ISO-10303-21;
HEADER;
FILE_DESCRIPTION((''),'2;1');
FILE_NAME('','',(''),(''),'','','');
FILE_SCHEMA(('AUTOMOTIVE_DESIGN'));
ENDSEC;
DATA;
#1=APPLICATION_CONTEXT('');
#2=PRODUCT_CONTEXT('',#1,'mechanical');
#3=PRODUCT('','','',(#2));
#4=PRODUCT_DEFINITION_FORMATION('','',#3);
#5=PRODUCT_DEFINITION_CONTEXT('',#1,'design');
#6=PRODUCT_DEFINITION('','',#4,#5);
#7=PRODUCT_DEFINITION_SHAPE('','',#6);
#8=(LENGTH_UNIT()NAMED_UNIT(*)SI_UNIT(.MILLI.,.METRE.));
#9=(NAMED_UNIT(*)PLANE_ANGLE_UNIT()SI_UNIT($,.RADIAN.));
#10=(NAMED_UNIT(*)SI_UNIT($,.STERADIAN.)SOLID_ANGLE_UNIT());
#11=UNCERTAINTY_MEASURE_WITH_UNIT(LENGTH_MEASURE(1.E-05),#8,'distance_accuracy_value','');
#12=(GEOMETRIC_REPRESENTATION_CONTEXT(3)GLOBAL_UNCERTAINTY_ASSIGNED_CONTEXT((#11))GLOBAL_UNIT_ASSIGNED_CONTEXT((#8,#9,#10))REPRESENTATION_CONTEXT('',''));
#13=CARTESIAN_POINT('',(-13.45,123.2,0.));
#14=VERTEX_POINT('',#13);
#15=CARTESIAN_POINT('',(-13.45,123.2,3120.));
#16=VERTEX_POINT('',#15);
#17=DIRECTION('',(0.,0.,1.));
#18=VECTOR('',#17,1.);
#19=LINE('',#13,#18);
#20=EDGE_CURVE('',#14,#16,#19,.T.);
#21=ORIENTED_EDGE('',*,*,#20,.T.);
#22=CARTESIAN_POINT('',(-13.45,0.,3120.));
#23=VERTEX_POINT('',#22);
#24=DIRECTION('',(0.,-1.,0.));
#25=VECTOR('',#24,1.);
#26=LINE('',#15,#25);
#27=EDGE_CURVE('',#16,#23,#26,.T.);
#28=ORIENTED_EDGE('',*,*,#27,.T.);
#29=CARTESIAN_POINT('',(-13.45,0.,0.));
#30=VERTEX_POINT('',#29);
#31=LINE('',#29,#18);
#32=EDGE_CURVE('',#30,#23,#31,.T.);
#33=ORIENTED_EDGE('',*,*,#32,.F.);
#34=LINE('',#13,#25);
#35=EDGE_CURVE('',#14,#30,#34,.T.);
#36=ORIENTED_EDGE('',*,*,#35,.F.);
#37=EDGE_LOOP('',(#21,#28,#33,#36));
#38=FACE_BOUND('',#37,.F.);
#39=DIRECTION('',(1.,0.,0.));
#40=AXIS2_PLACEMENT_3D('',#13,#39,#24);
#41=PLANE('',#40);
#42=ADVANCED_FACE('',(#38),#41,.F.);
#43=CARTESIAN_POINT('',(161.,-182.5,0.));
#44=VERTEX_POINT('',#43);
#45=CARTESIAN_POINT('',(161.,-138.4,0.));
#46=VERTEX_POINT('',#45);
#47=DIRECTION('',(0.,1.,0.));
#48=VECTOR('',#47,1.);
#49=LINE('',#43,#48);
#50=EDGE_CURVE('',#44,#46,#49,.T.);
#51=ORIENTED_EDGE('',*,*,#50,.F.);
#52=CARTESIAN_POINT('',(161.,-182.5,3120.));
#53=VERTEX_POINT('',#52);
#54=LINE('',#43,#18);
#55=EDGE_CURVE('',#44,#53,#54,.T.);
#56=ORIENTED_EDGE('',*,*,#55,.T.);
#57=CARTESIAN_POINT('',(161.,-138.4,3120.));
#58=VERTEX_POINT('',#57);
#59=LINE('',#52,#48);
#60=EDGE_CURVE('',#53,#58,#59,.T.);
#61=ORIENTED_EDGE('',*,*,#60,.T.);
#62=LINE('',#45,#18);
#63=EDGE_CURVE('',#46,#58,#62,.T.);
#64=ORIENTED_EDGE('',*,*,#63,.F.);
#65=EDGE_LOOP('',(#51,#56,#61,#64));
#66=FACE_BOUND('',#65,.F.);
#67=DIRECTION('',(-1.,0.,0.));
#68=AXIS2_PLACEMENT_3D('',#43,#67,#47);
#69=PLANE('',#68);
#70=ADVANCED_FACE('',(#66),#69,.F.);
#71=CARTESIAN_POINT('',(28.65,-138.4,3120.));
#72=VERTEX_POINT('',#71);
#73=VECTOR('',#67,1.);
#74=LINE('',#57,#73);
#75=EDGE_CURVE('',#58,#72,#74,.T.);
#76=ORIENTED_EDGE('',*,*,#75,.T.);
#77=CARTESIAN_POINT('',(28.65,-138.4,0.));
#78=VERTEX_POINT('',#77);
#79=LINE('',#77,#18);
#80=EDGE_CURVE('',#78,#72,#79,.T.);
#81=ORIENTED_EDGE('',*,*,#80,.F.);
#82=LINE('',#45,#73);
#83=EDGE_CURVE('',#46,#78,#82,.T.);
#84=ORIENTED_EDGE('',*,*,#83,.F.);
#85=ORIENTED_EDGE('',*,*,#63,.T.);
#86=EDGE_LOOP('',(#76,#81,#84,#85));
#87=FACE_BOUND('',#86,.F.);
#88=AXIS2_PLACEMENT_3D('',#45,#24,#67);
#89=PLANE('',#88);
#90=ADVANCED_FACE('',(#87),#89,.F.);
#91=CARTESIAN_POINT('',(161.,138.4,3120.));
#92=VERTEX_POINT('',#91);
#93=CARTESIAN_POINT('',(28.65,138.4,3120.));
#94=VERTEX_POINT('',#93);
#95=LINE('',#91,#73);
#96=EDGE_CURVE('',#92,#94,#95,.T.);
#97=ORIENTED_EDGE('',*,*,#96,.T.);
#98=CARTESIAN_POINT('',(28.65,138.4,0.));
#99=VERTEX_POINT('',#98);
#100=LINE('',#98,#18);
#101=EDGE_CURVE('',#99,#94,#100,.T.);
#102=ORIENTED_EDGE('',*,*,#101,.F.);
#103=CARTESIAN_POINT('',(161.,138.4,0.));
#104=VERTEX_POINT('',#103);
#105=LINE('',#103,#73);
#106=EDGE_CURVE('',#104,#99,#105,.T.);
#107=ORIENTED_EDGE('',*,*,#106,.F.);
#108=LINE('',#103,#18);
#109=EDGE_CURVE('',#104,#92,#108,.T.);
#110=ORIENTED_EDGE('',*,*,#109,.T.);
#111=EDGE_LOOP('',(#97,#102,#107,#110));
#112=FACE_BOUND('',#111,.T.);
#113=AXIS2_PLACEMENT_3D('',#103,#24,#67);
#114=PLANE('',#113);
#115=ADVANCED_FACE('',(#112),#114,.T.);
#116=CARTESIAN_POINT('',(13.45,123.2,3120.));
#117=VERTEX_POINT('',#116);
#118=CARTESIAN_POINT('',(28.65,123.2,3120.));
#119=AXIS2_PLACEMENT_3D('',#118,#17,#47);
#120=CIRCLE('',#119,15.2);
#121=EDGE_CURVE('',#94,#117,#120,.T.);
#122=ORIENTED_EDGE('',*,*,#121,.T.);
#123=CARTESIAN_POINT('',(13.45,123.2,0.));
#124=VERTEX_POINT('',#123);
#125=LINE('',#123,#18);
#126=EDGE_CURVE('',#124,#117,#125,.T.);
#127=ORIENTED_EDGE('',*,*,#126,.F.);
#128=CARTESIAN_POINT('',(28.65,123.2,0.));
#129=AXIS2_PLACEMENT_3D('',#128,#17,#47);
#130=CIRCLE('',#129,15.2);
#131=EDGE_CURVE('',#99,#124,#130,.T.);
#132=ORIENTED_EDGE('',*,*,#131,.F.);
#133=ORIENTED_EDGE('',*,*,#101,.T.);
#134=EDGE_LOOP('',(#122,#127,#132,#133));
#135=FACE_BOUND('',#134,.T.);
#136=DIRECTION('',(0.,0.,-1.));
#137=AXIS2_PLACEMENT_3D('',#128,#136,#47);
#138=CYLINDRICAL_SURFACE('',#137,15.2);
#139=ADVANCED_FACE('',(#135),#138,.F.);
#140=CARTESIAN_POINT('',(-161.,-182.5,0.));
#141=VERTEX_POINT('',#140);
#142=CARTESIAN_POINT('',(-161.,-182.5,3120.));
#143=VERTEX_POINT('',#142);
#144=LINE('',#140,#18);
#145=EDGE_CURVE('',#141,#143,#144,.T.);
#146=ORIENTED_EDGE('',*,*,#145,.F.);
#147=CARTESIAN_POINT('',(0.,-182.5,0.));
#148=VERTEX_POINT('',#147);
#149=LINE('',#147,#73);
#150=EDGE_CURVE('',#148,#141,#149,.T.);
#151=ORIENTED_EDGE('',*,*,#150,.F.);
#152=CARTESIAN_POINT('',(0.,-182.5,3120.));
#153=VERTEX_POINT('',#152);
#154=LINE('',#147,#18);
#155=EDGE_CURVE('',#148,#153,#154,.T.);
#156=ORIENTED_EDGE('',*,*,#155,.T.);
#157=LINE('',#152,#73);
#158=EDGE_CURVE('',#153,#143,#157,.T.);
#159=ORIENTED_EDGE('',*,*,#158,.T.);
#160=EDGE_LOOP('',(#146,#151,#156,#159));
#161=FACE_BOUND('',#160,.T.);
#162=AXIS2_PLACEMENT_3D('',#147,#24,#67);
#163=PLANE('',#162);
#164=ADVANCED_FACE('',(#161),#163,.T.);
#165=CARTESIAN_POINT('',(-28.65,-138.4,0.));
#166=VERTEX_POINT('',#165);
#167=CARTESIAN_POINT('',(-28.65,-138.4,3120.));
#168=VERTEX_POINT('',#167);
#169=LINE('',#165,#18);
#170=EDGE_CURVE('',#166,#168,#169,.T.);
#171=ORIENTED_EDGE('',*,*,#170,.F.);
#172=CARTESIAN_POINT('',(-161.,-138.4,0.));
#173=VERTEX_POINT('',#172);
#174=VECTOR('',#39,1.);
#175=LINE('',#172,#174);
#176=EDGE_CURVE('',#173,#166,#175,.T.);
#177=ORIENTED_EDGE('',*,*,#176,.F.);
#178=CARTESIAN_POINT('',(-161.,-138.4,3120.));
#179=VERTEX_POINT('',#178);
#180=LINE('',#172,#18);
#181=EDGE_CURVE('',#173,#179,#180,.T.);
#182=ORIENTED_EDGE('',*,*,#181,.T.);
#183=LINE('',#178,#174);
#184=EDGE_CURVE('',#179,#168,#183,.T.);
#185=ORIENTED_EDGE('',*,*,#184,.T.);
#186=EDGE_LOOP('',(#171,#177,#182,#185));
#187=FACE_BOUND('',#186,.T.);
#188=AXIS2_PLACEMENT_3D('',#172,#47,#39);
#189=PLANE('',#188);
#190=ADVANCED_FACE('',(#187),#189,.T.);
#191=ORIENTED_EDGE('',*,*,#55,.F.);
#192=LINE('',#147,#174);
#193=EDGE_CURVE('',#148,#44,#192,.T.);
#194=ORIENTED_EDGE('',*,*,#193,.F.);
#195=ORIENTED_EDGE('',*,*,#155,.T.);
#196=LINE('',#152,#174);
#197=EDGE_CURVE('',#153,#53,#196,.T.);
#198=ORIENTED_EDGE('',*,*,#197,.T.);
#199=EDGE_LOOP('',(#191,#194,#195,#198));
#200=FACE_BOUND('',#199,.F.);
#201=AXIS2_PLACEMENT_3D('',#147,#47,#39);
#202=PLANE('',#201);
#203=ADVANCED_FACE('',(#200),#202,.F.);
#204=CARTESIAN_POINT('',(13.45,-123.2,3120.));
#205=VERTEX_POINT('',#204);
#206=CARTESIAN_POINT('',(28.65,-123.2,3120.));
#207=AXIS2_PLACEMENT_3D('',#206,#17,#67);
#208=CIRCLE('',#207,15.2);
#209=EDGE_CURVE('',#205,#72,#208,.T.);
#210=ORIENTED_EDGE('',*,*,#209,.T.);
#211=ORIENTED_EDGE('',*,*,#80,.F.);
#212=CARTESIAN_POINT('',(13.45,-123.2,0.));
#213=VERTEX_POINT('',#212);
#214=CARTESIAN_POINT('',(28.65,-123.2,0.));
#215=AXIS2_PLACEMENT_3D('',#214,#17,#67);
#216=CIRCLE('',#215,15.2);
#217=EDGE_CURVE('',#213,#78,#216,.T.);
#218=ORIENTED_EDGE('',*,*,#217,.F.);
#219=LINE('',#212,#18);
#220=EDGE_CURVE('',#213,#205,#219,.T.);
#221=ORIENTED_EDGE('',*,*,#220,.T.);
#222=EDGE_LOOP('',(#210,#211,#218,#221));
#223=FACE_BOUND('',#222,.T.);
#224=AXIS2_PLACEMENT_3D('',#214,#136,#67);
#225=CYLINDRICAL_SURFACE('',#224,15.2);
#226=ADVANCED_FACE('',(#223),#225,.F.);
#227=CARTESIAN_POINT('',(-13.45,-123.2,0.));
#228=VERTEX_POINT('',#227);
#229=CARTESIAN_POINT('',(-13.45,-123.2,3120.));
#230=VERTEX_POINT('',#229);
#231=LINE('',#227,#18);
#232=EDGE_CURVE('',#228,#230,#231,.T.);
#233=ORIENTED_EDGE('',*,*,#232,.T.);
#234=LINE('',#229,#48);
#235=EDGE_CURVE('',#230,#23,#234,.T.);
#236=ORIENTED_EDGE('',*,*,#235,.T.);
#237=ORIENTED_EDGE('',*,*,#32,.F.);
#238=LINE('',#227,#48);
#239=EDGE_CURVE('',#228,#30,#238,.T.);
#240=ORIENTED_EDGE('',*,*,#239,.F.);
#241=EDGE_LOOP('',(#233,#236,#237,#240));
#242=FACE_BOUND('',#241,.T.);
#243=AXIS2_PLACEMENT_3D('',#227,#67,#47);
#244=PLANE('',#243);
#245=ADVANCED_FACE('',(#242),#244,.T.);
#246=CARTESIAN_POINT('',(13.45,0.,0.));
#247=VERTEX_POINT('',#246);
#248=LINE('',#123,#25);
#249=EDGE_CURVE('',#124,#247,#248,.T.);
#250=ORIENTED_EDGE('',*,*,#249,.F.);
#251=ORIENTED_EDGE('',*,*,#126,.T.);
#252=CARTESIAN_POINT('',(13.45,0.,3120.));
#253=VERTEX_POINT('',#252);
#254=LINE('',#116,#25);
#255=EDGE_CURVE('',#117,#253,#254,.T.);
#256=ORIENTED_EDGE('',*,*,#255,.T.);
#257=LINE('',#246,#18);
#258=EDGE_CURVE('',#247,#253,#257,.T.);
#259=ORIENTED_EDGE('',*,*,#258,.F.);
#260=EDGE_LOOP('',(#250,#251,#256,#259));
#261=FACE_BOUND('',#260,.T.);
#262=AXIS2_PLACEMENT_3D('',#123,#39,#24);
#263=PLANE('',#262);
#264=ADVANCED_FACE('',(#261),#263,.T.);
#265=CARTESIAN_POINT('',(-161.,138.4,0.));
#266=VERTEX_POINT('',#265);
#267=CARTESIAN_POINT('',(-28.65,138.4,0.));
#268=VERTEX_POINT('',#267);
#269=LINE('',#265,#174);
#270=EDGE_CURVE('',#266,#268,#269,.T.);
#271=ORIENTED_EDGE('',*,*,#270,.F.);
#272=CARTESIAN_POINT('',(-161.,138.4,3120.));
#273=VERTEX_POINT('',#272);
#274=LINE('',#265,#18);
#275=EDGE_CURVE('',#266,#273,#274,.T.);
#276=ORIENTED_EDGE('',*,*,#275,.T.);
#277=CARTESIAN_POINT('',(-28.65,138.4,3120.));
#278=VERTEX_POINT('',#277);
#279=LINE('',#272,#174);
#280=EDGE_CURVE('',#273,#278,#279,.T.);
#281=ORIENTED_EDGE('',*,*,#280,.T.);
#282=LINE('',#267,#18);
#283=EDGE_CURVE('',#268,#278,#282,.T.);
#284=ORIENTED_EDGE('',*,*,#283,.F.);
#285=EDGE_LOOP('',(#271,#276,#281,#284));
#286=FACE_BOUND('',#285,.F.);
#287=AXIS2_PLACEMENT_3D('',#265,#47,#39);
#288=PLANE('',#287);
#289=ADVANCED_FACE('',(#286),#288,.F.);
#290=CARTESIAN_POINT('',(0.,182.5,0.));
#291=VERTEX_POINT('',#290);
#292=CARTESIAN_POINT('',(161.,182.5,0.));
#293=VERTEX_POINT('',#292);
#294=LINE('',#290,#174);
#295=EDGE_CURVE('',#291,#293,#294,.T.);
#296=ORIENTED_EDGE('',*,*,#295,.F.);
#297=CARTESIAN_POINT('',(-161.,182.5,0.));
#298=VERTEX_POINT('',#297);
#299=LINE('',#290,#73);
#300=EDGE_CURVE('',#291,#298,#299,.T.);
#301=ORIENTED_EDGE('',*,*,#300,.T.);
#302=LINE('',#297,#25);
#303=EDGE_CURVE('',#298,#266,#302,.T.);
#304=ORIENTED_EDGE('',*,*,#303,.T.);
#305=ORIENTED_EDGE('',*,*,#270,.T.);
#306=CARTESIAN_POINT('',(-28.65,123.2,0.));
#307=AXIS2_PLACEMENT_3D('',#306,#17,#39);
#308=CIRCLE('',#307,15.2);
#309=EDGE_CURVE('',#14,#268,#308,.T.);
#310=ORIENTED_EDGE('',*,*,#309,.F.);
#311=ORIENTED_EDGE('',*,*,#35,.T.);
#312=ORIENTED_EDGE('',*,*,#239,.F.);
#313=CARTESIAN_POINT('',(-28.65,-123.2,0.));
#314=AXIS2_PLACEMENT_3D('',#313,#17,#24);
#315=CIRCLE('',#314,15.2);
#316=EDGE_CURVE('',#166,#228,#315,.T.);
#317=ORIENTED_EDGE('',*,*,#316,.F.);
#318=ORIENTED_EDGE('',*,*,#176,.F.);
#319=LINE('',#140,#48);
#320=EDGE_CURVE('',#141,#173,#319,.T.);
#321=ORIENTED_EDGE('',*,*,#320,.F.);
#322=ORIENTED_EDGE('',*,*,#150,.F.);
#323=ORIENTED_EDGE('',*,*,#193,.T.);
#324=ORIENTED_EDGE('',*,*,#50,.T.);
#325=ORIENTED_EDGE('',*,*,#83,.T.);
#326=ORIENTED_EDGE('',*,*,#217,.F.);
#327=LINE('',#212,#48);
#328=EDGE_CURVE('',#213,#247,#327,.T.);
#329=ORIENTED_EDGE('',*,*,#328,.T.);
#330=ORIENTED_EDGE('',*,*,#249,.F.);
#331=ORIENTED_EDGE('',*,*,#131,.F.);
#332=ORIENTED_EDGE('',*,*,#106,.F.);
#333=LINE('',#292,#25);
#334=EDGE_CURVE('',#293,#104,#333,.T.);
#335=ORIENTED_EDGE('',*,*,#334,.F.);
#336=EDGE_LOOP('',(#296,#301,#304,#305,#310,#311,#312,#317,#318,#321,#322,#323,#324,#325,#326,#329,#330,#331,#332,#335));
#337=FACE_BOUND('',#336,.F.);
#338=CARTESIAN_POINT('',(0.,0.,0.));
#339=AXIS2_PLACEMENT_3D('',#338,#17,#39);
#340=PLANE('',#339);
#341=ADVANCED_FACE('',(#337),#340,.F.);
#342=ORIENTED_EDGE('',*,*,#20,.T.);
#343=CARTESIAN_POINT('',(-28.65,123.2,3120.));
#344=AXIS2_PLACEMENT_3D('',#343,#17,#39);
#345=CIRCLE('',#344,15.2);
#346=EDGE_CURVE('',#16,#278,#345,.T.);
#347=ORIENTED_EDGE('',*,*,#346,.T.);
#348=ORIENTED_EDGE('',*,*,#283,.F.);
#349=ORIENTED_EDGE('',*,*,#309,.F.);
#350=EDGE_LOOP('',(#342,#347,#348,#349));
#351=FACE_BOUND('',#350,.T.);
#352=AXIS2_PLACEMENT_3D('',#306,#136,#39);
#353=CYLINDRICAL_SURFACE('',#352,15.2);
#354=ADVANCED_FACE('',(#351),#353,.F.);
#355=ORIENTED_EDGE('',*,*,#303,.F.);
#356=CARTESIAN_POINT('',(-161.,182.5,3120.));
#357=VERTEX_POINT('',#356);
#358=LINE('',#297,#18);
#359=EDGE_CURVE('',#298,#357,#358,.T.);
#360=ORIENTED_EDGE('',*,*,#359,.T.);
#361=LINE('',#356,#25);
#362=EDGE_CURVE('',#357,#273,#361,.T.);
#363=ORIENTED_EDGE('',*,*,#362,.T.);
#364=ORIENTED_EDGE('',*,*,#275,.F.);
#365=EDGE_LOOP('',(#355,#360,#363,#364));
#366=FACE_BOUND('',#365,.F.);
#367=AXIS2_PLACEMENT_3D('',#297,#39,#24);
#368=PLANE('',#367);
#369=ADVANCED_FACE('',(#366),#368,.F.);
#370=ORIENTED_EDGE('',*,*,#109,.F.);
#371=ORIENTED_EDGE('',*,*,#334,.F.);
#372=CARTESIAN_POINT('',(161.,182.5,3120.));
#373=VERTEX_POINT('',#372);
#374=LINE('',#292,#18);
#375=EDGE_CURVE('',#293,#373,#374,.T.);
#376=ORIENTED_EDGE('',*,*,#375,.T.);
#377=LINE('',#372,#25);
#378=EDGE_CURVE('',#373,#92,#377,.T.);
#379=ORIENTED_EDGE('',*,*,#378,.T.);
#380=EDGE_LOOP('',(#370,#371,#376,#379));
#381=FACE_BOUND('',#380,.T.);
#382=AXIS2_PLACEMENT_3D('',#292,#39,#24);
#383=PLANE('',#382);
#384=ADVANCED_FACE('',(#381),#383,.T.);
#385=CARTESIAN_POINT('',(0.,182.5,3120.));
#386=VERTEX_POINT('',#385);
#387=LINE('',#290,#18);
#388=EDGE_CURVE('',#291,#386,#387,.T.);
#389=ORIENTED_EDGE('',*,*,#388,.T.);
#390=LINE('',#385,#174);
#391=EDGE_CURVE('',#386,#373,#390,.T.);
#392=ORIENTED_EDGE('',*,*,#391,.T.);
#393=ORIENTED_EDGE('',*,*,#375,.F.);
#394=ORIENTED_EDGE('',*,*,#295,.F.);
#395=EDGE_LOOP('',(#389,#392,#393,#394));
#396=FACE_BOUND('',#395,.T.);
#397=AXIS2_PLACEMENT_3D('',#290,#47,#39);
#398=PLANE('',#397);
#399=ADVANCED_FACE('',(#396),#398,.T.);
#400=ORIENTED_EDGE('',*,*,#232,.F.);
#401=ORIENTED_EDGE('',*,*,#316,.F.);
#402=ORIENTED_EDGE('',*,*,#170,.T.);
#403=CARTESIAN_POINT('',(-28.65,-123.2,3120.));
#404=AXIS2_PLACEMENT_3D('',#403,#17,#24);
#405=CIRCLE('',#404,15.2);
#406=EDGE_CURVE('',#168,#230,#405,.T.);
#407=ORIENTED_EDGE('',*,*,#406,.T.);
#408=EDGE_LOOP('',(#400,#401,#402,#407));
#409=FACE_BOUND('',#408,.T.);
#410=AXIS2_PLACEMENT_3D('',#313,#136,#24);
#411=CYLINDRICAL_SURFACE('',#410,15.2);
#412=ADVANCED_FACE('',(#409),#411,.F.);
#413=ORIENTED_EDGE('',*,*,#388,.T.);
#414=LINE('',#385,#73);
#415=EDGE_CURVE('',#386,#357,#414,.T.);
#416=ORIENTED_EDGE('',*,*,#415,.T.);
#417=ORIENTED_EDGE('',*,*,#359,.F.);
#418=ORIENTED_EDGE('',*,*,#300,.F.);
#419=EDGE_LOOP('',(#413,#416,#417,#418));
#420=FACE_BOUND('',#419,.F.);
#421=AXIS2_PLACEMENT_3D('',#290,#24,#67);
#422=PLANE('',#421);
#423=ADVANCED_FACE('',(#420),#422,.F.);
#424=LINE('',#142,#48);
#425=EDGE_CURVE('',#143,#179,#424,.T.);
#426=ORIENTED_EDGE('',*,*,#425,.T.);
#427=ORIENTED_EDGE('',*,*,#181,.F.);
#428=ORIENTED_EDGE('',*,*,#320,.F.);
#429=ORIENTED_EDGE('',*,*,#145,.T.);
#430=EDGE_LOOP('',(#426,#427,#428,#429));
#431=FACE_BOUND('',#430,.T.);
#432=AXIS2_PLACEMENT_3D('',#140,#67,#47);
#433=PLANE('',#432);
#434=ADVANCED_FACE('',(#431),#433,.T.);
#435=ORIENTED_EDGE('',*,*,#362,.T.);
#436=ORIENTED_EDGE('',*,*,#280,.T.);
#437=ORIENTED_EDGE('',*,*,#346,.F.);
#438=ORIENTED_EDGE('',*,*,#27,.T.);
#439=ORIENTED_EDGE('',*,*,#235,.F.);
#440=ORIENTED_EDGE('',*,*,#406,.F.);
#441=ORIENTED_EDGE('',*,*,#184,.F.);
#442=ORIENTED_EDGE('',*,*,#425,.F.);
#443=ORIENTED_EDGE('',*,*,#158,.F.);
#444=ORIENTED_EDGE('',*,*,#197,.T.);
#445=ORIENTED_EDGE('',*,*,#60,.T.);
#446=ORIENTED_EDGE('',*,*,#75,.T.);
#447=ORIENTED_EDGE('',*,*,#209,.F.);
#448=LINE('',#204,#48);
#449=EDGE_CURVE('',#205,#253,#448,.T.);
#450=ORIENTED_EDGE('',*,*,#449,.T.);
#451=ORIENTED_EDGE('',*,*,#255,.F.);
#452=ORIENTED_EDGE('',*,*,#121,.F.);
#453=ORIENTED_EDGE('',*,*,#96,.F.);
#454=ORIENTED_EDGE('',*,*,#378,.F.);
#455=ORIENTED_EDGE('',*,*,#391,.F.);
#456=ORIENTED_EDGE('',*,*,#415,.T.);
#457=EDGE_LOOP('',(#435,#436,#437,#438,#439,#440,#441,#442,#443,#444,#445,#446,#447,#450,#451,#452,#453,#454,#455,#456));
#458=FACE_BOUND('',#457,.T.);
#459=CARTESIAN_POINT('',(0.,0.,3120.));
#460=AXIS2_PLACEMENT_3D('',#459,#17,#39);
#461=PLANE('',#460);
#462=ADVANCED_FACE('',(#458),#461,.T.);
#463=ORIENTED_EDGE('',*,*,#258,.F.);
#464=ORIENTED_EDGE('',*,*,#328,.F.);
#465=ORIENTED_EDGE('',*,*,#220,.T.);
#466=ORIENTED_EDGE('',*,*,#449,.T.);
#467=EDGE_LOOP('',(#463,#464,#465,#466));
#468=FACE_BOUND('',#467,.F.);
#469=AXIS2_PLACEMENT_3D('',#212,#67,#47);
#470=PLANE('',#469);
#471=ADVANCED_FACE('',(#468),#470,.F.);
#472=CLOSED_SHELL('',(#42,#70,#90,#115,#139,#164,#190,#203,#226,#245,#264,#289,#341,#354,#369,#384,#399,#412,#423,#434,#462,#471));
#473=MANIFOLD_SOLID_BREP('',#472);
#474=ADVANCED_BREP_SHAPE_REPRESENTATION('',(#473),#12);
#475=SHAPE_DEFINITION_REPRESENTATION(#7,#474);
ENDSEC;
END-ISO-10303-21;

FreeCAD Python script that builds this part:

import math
import FreeCAD as App
import Part
import Sketcher

V = App.Vector

doc = App.newDocument("Part")
body = doc.addObject("PartDesign::Body", "Body")

# Sketch on XY plane
sketch1 = body.newObject("Sketcher::SketchObject", "Sketch")
sketch1.AttachmentSupport = (doc.getObject("XY_Plane"), [""])
sketch1.MapMode = "FlatFace"
sketch1.addGeometry([
    Part.LineSegment(V(-161, -138, 0), V(-161, -182, 0)),  # 0
    Part.LineSegment(V(-161, -182, 0), V(161, -182, 0)),  # 1
    Part.LineSegment(V(161, -182, 0), V(161, -138, 0)),  # 2
    Part.LineSegment(V(161, -138, 0), V(29, -138, 0)),  # 3
    Part.ArcOfCircle(Part.Circle(V(29, -123, 0), V(0, 0, 1), 15), math.radians(180), math.radians(270)),  # 4
    Part.LineSegment(V(13, -123, 0), V(13, 123, 0)),  # 5
    Part.ArcOfCircle(Part.Circle(V(29, 123, 0), V(0, 0, 1), 15), math.radians(90), math.radians(180)),  # 6
    Part.LineSegment(V(29, 138, 0), V(161, 138, 0)),  # 7
    Part.LineSegment(V(161, 138, 0), V(161, 182, 0)),  # 8
    Part.LineSegment(V(161, 182, 0), V(-161, 182, 0)),  # 9
    Part.LineSegment(V(-161, 182, 0), V(-161, 138, 0)),  # 10
    Part.LineSegment(V(-161, 138, 0), V(-29, 138, 0)),  # 11
    Part.ArcOfCircle(Part.Circle(V(-29, 123, 0), V(0, 0, 1), 15), math.radians(0), math.radians(90)),  # 12
    Part.LineSegment(V(-13, 123, 0), V(-13, -123, 0)),  # 13
    Part.ArcOfCircle(Part.Circle(V(-29, -123, 0), V(0, 0, 1), 15), math.radians(-90), math.radians(0)),  # 14
    Part.LineSegment(V(-29, -138, 0), V(-161, -138, 0)),  # 15
], False)
sketch1.addConstraint([
    Sketcher.Constraint("Coincident", 0, 2, 1, 1),
    Sketcher.Constraint("Coincident", 1, 2, 2, 1),
    Sketcher.Constraint("Coincident", 2, 2, 3, 1),
    Sketcher.Constraint("Tangent", 3, 2, 4, 2),
    Sketcher.Constraint("Tangent", 4, 1, 5, 1),
    Sketcher.Constraint("Tangent", 5, 2, 6, 2),
    Sketcher.Constraint("Tangent", 6, 1, 7, 1),
    Sketcher.Constraint("Coincident", 7, 2, 8, 1),
    Sketcher.Constraint("Coincident", 8, 2, 9, 1),
    Sketcher.Constraint("Coincident", 9, 2, 10, 1),
    Sketcher.Constraint("Coincident", 10, 2, 11, 1),
    Sketcher.Constraint("Tangent", 11, 2, 12, 2),
    Sketcher.Constraint("Tangent", 12, 1, 13, 1),
    Sketcher.Constraint("Tangent", 13, 2, 14, 2),
    Sketcher.Constraint("Tangent", 14, 1, 15, 1),
    Sketcher.Constraint("Coincident", 15, 2, 0, 1),
    Sketcher.Constraint("Vertical", 0),
    Sketcher.Constraint("Horizontal", 1),
    Sketcher.Constraint("Vertical", 2),
    Sketcher.Constraint("Horizontal", 3),
    Sketcher.Constraint("Vertical", 5),
    Sketcher.Constraint("Horizontal", 7),
    Sketcher.Constraint("Vertical", 8),
    Sketcher.Constraint("Horizontal", 9),
    Sketcher.Constraint("Vertical", 10),
    Sketcher.Constraint("Horizontal", 11),
    Sketcher.Constraint("Vertical", 13),
    Sketcher.Constraint("Horizontal", 15),
    Sketcher.Constraint("Equal", 4, 6),
    Sketcher.Constraint("Equal", 6, 12),
    Sketcher.Constraint("Equal", 12, 14),
    Sketcher.Constraint("Symmetric", 4, 3, 12, 3, -1, 1),
    Sketcher.Constraint("Symmetric", 0, 2, 8, 2, -1, 1),
    Sketcher.Constraint("Symmetric", 7, 2, 10, 2, -2),
    Sketcher.Constraint("Symmetric", 2, 2, 15, 2, -2),
    Sketcher.Constraint("Radius", 4, 15.2),
    Sketcher.Constraint("DistanceY", 0, 2, 0, 1, 44.1),
    Sketcher.Constraint("DistanceX", 0, 2, -1, 1, 161.0),
    Sketcher.Constraint("DistanceY", 0, 2, -1, 1, 182.5),
    Sketcher.Constraint("DistanceX", -1, 1, 4, 1, 13.45),
])
pad1 = body.newObject("PartDesign::Pad", "Pad")
pad1.Profile = sketch1
pad1.Length = 3120

doc.recompute()
